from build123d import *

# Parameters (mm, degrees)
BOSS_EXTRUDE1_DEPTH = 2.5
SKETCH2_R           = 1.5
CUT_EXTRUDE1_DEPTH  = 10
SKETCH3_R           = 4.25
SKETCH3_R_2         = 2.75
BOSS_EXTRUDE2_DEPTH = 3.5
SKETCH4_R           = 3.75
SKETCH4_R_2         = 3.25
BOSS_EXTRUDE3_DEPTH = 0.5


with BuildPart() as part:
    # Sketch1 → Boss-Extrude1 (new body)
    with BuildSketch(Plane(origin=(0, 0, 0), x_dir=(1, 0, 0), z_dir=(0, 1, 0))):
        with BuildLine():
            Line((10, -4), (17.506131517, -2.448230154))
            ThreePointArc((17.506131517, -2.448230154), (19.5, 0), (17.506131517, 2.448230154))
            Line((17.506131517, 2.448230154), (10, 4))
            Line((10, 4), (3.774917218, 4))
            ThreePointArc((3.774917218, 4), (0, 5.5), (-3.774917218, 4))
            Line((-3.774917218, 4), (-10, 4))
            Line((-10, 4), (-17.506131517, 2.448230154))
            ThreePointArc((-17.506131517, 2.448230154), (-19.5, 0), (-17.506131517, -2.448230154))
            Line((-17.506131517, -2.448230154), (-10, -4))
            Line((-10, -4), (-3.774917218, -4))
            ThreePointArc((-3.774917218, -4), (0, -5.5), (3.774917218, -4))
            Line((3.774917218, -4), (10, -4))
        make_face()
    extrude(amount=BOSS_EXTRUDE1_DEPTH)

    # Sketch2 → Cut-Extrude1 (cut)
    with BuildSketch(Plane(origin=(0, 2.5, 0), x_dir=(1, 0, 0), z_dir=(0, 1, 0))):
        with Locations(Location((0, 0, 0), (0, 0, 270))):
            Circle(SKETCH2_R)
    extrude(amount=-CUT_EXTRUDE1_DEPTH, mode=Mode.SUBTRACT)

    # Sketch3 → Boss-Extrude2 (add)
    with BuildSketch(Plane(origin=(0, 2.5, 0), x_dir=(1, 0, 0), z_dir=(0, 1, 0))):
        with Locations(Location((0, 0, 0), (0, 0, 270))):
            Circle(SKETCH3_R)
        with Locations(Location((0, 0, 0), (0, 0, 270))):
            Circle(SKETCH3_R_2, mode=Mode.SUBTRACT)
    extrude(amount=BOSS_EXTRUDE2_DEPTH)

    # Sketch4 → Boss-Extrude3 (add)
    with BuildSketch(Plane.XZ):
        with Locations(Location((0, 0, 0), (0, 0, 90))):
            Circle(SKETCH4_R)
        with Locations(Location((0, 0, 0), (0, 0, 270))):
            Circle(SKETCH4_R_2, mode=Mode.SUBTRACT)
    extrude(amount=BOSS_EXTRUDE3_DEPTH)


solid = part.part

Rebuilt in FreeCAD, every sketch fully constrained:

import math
import FreeCAD as App
import Part
import Sketcher
from FreeCAD import Vector
Q = App.Units.Quantity

doc = App.newDocument("Part")
body = doc.addObject("PartDesign::Body", "Body")

# Sketch on XZ plane
sketch1 = doc.addObject("Sketcher::SketchObject", "Sketch")
body.addObject(sketch1)
sketch1.AttachmentSupport = (doc.XZ_Plane, [""])
sketch1.MapMode = "FlatFace"
sketch1.addGeometry([
    Part.LineSegment(Vector(10, 4, 0), Vector(17.5, 2.4, 0)),  # 0
    Part.ArcOfCircle(Part.Circle(Vector(17, 0, 0), Vector(0, 0, 1), 2.5), math.radians(-78), math.radians(78)),  # 1
    Part.LineSegment(Vector(17.5, -2.4, 0), Vector(10, -4, 0)),  # 2
    Part.LineSegment(Vector(10, -4, 0), Vector(3.8, -4, 0)),  # 3
    Part.ArcOfCircle(Part.Circle(Vector(0, 0, 0), Vector(0, 0, 1), 5.5), math.radians(-133), math.radians(-47)),  # 4
    Part.LineSegment(Vector(-3.8, -4, 0), Vector(-10, -4, 0)),  # 5
    Part.LineSegment(Vector(-10, -4, 0), Vector(-17.5, -2.4, 0)),  # 6
    Part.ArcOfCircle(Part.Circle(Vector(-17, 0, 0), Vector(0, 0, 1), 2.5), math.radians(102), math.radians(258)),  # 7
    Part.LineSegment(Vector(-17.5, 2.4, 0), Vector(-10, 4, 0)),  # 8
    Part.LineSegment(Vector(-10, 4, 0), Vector(-3.8, 4, 0)),  # 9
    Part.ArcOfCircle(Part.Circle(Vector(0, 0, 0), Vector(0, 0, 1), 5.5), math.radians(47), math.radians(133)),  # 10
    Part.LineSegment(Vector(3.8, 4, 0), Vector(10, 4, 0)),  # 11
], False)
sketch1.addConstraint([
    Sketcher.Constraint("Tangent", 0, 2, 1, 2),
    Sketcher.Constraint("Tangent", 1, 1, 2, 1),
    Sketcher.Constraint("Coincident", 2, 2, 3, 1),
    Sketcher.Constraint("Coincident", 3, 2, 4, 2),
    Sketcher.Constraint("Coincident", 4, 1, 5, 1),
    Sketcher.Constraint("Coincident", 5, 2, 6, 1),
    Sketcher.Constraint("Tangent", 6, 2, 7, 2),
    Sketcher.Constraint("Tangent", 7, 1, 8, 1),
    Sketcher.Constraint("Coincident", 8, 2, 9, 1),
    Sketcher.Constraint("Coincident", 9, 2, 10, 2),
    Sketcher.Constraint("Coincident", 10, 1, 11, 1),
    Sketcher.Constraint("Coincident", 11, 2, 0, 1),
    Sketcher.Constraint("Horizontal", 3),
    Sketcher.Constraint("Horizontal", 5),
    Sketcher.Constraint("Horizontal", 9),
    Sketcher.Constraint("Horizontal", 11),
    Sketcher.Constraint("Coincident", 4, 3, -1, 1),
    Sketcher.Constraint("Coincident", 10, 3, -1, 1),
    Sketcher.Constraint("Equal", 1, 7),
    Sketcher.Constraint("Equal", 4, 10),
    Sketcher.Constraint("Symmetric", 1, 3, 7, 3, -1, 1),
    Sketcher.Constraint("Symmetric", 2, 2, 8, 2, -1, 1),
    Sketcher.Constraint("Symmetric", 5, 2, 11, 2, -1, 1),
    Sketcher.Constraint("Symmetric", 2, 2, 5, 2, -2),
    Sketcher.Constraint("PointOnObject", 1, 3, -1),
    Sketcher.Constraint("Radius", 1, Q("2.5 mm")),
    Sketcher.Constraint("Radius", 4, Q("5.5 mm")),
    Sketcher.Constraint("DistanceX", -1, 1, 1, 3, Q("17 mm")),
    Sketcher.Constraint("DistanceX", -1, 1, 2, 2, Q("10 mm")),
    Sketcher.Constraint("DistanceY", 2, 2, -1, 1, Q("4 mm")),
])
pad1 = doc.addObject("PartDesign::Pad", "Pad")
body.addObject(pad1)
pad1.Profile = sketch1
pad1.Length = 2.5
pad1.Reversed = True

# Sketch on XZ plane
sketch2 = doc.addObject("Sketcher::SketchObject", "Sketch001")
body.addObject(sketch2)
sketch2.AttachmentSupport = (doc.XZ_Plane, [""])
sketch2.MapMode = "FlatFace"
sketch2.AttachmentOffset = App.Placement(Vector(0, 0, -2.5), App.Rotation())
sketch2.addGeometry(Part.Circle(Vector(0, 0, 0), Vector(0, 0, 1), 1.5), False)
sketch2.addConstraint([
    Sketcher.Constraint("Coincident", 0, 3, -1, 1),
    Sketcher.Constraint("Diameter", 0, Q("3 mm")),
])
pocket1 = doc.addObject("PartDesign::Pocket", "Pocket")
body.addObject(pocket1)
pocket1.Profile = sketch2
pocket1.Length = 10
pocket1.Reversed = True

# Sketch on XZ plane
sketch3 = doc.addObject("Sketcher::SketchObject", "Sketch002")
body.addObject(sketch3)
sketch3.AttachmentSupport = (doc.XZ_Plane, [""])
sketch3.MapMode = "FlatFace"
sketch3.AttachmentOffset = App.Placement(Vector(0, 0, -2.5), App.Rotation())
sketch3.addGeometry([
    Part.Circle(Vector(0, 0, 0), Vector(0, 0, 1), 4.2),
    Part.Circle(Vector(0, 0, 0), Vector(0, 0, 1), 2.8),
], False)
sketch3.addConstraint([
    Sketcher.Constraint("Coincident", 0, 3, -1, 1),
    Sketcher.Constraint("Coincident", 1, 3, -1, 1),
    Sketcher.Constraint("Diameter", 0, Q("8.5 mm")),
    Sketcher.Constraint("Diameter", 1, Q("5.5 mm")),
])
pad2 = doc.addObject("PartDesign::Pad", "Pad001")
body.addObject(pad2)
pad2.Profile = sketch3
pad2.Length = 3.5
pad2.Reversed = True

# Sketch on XZ plane
sketch4 = doc.addObject("Sketcher::SketchObject", "Sketch003")
body.addObject(sketch4)
sketch4.AttachmentSupport = (doc.XZ_Plane, [""])
sketch4.MapMode = "FlatFace"
sketch4.addGeometry([
    Part.Circle(Vector(0, 0, 0), Vector(0, 0, 1), 3.8),
    Part.Circle(Vector(0, 0, 0), Vector(0, 0, 1), 3.2),
], False)
sketch4.addConstraint([
    Sketcher.Constraint("Coincident", 0, 3, -1, 1),
    Sketcher.Constraint("Coincident", 1, 3, -1, 1),
    Sketcher.Constraint("Diameter", 0, Q("7.5 mm")),
    Sketcher.Constraint("Diameter", 1, Q("6.5 mm")),
])
pad3 = doc.addObject("PartDesign::Pad", "Pad002")
body.addObject(pad3)
pad3.Profile = sketch4
pad3.Length = 0.5

doc.recompute()
